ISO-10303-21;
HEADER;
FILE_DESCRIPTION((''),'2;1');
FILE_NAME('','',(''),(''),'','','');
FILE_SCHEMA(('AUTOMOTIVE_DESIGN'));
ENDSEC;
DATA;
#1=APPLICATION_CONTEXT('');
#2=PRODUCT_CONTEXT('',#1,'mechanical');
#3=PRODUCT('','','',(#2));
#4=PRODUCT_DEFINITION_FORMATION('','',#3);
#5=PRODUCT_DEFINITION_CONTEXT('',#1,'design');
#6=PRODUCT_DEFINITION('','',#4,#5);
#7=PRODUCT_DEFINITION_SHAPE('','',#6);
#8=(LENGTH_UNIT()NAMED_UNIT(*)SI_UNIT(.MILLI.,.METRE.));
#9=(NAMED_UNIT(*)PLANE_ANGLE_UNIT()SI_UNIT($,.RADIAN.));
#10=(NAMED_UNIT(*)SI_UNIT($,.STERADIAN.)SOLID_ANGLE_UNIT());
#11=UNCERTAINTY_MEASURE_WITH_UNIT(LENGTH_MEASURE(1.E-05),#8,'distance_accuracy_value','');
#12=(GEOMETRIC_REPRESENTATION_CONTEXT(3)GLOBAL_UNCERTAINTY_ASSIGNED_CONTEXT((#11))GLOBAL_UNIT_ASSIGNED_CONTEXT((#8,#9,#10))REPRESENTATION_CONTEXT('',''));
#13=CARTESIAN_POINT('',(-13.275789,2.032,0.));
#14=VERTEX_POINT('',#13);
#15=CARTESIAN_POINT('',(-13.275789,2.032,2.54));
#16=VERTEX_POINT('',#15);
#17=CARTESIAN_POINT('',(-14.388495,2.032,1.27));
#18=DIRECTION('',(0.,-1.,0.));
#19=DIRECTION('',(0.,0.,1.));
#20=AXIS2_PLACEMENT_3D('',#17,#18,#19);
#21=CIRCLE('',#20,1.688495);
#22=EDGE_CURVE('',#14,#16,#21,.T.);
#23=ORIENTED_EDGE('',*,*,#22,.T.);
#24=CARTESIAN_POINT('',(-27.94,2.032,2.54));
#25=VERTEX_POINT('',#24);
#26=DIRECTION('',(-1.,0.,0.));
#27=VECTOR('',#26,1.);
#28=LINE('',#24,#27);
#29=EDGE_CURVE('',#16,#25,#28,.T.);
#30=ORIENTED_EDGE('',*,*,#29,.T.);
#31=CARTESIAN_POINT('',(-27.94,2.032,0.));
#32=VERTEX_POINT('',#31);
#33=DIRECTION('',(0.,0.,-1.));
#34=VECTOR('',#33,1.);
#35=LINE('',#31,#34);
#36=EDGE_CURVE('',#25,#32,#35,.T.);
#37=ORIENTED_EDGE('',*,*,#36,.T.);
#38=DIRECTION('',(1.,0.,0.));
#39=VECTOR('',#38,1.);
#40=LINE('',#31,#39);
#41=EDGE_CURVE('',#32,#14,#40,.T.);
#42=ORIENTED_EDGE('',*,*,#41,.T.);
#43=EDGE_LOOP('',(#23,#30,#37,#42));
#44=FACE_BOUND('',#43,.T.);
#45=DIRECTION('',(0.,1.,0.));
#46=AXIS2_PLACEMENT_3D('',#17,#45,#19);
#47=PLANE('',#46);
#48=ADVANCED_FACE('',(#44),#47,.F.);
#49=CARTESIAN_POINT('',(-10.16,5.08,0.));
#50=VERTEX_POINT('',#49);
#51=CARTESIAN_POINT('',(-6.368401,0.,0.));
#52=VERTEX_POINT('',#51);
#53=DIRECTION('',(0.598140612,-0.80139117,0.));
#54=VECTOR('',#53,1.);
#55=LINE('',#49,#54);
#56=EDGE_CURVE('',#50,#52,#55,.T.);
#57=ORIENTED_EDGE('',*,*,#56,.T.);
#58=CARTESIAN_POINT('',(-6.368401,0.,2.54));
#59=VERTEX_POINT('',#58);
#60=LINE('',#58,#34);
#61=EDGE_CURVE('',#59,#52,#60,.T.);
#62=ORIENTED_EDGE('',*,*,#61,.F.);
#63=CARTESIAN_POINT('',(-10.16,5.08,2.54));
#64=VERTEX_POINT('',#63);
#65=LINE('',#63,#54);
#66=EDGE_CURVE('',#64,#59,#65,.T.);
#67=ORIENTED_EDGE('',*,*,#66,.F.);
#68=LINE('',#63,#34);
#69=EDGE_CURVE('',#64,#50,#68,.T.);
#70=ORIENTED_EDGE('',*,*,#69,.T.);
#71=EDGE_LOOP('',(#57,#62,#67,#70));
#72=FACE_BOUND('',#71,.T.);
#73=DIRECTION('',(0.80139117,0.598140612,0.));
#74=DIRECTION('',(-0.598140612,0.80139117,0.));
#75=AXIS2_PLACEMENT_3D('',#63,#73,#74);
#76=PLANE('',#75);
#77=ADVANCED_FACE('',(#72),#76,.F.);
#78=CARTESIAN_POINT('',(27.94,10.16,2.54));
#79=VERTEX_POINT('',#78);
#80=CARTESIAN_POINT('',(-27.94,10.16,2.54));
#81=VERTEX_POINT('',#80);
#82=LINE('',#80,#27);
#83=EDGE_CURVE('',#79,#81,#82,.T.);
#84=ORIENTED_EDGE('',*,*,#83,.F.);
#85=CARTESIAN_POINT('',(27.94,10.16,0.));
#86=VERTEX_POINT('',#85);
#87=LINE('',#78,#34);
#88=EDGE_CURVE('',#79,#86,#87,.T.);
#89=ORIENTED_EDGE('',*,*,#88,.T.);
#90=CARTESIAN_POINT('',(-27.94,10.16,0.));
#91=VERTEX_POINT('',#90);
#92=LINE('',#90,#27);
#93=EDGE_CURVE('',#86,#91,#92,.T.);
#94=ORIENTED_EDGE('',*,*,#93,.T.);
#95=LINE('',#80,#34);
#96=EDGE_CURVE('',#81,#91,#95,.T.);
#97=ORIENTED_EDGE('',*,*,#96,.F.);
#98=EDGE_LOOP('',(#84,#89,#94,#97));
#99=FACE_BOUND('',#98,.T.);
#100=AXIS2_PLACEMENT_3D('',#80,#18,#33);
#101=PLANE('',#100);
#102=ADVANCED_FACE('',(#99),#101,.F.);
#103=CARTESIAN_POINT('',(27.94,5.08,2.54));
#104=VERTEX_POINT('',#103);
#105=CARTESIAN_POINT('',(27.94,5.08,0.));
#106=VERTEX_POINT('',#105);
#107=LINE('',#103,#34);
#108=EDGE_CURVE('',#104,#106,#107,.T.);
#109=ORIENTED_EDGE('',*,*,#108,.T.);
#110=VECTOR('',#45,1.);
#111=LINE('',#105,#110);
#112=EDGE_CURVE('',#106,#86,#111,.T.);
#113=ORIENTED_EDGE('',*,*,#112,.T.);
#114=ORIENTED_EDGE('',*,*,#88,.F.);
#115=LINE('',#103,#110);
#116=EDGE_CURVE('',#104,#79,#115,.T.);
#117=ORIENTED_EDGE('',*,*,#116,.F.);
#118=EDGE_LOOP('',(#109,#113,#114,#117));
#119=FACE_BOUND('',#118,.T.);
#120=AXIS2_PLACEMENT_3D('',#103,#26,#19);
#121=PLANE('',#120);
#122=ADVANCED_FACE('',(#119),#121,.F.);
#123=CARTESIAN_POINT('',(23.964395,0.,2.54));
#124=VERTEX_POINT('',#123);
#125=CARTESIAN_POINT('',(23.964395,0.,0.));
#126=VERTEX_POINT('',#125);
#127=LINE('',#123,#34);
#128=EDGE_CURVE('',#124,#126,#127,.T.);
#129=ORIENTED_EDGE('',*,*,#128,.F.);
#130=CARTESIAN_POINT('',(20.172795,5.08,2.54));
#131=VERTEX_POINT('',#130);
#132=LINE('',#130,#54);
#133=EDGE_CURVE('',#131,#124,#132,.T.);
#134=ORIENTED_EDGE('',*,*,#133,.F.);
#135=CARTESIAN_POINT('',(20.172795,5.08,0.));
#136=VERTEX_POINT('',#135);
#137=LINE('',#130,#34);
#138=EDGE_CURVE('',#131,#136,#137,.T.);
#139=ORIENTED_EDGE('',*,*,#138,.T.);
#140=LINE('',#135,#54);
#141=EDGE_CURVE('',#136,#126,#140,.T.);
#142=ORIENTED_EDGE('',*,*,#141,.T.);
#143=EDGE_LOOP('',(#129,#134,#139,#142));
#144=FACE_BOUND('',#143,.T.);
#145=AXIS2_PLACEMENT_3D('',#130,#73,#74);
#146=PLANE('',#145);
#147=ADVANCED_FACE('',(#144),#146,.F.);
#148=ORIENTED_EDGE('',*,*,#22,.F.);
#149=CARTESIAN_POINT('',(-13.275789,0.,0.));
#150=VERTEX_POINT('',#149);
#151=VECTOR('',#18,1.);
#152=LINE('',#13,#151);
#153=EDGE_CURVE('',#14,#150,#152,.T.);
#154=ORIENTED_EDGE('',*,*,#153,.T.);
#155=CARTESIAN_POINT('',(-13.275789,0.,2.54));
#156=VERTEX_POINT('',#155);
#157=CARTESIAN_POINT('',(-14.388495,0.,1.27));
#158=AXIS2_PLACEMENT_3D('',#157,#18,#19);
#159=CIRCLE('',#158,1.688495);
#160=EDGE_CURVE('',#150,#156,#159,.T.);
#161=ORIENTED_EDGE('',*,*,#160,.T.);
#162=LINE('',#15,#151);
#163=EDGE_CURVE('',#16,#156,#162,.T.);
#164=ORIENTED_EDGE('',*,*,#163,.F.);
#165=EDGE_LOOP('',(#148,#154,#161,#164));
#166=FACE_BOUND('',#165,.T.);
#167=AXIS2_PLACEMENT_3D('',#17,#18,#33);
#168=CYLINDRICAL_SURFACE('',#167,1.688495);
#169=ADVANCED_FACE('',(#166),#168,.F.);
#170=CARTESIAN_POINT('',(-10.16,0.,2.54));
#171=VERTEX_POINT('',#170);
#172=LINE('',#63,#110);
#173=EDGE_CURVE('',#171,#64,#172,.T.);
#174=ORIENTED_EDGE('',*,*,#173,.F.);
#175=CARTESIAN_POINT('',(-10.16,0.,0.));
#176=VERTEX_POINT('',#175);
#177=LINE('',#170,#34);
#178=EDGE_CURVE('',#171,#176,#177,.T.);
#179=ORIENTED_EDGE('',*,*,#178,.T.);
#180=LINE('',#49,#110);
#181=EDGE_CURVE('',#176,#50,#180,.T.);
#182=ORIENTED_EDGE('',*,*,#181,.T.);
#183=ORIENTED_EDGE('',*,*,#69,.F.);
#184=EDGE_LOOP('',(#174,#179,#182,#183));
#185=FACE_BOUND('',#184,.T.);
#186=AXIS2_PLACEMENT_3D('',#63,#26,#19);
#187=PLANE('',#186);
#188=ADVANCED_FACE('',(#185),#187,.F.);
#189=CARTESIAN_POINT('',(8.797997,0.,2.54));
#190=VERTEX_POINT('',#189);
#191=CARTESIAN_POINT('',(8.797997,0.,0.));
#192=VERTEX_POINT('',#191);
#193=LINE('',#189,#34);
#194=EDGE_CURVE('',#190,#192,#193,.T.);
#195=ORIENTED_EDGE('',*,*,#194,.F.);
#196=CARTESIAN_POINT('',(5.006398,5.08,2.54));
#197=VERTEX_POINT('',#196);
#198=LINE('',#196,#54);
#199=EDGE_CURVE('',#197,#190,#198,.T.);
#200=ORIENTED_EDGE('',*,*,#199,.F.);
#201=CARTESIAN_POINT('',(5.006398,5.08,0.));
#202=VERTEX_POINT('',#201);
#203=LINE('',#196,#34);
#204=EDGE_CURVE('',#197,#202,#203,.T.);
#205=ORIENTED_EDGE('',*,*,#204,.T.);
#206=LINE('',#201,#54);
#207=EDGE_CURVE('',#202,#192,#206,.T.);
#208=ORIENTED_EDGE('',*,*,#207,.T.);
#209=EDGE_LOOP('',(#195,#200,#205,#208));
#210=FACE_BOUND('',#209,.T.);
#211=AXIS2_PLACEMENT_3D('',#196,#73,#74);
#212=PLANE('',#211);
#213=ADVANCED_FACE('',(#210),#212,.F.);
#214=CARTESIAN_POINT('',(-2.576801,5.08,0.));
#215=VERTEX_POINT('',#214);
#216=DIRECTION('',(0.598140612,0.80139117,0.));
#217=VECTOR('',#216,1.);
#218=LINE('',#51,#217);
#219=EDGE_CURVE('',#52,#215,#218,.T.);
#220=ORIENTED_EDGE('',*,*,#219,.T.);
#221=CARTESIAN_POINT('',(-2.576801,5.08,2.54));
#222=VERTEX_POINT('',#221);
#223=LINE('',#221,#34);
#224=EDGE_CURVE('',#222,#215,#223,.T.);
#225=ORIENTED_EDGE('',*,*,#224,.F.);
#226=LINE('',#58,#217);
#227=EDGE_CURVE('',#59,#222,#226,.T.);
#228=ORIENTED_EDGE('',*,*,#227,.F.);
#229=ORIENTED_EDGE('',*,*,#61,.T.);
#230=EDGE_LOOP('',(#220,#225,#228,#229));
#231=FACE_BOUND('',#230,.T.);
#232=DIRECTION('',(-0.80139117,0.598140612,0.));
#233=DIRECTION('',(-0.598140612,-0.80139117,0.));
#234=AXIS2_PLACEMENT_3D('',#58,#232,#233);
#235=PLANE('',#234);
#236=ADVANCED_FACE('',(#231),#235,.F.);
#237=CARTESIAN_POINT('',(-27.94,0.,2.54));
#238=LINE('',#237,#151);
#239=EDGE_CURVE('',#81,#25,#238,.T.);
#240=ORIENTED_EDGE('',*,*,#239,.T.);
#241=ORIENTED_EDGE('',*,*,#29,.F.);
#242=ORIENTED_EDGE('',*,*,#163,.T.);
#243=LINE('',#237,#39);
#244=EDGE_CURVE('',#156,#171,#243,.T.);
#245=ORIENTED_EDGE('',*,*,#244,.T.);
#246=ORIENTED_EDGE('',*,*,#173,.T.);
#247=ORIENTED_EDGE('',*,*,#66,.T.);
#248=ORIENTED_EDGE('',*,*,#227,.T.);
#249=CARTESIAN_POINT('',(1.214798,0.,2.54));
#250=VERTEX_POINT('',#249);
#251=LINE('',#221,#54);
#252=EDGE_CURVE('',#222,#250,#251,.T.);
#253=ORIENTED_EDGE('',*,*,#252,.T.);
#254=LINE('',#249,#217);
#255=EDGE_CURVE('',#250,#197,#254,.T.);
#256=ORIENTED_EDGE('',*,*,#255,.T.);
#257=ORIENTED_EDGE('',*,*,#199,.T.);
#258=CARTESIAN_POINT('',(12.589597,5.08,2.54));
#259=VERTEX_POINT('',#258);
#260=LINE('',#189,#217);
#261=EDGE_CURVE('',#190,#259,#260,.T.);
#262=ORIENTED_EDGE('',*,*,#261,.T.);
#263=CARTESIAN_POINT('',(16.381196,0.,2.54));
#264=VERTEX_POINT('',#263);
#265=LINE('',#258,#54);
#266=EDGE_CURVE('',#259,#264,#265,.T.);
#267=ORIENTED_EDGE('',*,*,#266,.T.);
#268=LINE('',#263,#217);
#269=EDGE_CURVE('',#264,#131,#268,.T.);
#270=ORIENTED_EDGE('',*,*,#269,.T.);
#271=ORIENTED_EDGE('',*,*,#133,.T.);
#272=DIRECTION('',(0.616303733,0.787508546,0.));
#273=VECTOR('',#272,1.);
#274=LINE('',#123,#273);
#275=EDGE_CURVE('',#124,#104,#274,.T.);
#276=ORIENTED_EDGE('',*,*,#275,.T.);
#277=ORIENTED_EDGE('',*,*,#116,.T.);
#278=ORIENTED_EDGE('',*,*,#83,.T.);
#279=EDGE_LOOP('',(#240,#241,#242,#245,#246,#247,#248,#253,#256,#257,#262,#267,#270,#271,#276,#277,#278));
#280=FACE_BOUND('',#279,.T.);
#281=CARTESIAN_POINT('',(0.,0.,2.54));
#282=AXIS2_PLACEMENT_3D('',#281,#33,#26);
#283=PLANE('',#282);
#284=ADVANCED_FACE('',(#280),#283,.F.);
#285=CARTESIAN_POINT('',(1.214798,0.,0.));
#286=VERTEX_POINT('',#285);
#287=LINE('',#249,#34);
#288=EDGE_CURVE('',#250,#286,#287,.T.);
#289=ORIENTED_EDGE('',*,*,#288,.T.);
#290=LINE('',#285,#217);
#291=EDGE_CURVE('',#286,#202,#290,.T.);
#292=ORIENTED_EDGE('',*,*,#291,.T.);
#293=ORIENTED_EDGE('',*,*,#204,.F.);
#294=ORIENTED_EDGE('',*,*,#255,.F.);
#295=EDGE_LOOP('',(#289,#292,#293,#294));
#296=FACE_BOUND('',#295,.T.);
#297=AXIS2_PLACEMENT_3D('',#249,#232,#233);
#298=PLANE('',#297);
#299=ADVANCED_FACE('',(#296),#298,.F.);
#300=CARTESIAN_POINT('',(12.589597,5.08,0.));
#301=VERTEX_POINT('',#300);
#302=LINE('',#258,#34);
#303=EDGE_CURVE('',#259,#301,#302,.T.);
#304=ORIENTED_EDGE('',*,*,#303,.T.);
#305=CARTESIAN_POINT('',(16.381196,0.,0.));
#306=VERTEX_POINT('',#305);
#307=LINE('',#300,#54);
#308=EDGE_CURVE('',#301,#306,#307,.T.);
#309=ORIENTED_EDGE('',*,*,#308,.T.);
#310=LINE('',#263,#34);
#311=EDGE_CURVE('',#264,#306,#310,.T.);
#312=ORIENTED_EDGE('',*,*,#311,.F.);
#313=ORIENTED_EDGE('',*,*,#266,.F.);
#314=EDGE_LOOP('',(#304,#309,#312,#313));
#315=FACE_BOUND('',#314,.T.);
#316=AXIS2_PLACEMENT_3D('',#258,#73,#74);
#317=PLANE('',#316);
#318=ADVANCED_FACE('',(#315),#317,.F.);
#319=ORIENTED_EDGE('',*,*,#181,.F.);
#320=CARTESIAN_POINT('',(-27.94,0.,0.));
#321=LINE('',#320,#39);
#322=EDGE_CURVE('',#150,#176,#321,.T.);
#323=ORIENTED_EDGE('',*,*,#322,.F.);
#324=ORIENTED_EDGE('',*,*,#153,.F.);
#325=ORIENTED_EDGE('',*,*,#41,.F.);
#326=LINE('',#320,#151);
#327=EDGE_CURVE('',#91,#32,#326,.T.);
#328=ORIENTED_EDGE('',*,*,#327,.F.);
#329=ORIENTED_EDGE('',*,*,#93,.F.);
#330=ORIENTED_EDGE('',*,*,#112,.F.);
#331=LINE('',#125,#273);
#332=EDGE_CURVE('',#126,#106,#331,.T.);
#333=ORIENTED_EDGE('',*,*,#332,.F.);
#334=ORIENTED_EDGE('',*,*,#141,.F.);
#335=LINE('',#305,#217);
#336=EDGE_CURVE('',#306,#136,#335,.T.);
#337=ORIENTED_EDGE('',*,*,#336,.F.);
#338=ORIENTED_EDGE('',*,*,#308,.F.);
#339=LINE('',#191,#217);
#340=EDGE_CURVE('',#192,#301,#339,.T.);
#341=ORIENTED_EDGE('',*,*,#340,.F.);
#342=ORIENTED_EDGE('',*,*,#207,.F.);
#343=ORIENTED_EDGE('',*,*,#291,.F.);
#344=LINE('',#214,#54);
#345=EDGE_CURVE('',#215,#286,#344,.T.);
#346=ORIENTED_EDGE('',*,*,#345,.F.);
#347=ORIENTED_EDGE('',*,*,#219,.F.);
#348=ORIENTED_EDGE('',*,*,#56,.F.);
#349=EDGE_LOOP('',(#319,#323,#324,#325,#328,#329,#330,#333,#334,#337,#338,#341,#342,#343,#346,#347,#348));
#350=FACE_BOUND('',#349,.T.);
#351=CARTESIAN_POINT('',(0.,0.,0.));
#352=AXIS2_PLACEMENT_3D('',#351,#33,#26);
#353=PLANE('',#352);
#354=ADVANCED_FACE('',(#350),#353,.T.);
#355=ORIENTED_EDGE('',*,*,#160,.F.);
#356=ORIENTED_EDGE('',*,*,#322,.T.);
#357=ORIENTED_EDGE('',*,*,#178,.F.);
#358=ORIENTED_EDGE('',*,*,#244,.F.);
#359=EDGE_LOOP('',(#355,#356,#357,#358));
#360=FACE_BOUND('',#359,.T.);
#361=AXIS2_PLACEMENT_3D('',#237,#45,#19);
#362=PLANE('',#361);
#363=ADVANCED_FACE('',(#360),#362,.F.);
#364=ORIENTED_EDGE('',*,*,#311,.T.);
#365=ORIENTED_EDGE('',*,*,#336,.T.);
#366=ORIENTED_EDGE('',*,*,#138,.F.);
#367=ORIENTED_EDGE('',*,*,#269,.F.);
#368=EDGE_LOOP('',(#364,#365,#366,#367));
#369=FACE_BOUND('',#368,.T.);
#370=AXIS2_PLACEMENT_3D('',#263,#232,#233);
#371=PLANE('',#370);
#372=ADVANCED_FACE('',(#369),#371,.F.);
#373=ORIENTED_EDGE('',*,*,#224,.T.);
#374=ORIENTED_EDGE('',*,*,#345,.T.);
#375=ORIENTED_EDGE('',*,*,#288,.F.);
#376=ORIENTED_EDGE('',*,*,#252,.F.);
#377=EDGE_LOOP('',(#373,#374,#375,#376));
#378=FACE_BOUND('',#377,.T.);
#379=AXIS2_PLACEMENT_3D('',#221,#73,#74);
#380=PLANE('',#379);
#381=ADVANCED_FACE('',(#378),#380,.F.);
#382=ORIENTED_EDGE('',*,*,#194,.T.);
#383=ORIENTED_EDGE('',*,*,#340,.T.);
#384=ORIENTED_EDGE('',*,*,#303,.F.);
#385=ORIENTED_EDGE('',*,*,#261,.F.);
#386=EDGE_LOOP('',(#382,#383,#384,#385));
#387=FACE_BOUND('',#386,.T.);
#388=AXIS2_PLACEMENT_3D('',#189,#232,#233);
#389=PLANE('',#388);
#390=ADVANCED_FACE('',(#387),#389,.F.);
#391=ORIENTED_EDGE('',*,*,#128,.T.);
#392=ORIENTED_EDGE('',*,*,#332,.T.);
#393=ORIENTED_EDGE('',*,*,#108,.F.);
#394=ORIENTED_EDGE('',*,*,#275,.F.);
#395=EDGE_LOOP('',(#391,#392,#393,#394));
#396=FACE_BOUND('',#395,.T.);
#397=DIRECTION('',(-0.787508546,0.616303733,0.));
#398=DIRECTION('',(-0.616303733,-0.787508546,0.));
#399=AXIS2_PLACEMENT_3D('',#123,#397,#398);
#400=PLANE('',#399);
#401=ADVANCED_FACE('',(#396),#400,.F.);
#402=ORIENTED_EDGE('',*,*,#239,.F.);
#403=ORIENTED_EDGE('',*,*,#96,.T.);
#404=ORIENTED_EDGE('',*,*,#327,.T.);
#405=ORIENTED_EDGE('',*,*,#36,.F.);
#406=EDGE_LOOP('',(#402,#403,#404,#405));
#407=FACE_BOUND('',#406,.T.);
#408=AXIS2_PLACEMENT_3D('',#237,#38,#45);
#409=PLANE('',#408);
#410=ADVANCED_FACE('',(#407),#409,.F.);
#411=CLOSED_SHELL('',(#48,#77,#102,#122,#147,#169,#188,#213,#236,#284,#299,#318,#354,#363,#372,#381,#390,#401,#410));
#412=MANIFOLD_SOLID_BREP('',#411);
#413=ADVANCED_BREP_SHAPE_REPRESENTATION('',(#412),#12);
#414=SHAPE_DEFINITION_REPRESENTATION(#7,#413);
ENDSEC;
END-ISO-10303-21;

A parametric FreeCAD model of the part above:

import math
import FreeCAD as App
import Part
import Sketcher
Q = App.Units.Quantity

doc = App.newDocument("Part")
body = doc.addObject("PartDesign::Body", "Body")

# Sketch on XY plane
sketch1 = doc.addObject("Sketcher::SketchObject", "Sketch")
body.addObject(sketch1)
sketch1.AttachmentSupport = (doc.XY_Plane, [""])
sketch1.MapMode = "FlatFace"
sketch1.addGeometry(Part.LineSegment(App.Vector(-27.94, 0, 0), App.Vector(-10.16, 0, 0)), False)
sketch1.addGeometry(Part.LineSegment(App.Vector(-10.16, 0, 0), App.Vector(-10.16, 5.08, 0)), False)
sketch1.addGeometry(Part.LineSegment(App.Vector(-10.16, 5.08, 0), App.Vector(-6.368401, 0, 0)), False)
sketch1.addGeometry(Part.LineSegment(App.Vector(-6.368401, 0, 0), App.Vector(-2.576801, 5.08, 0)), False)
sketch1.addGeometry(Part.LineSegment(App.Vector(-2.576801, 5.08, 0), App.Vector(1.214798, 0, 0)), False)
sketch1.addGeometry(Part.LineSegment(App.Vector(1.214798, 0, 0), App.Vector(5.006398, 5.08, 0)), False)
sketch1.addGeometry(Part.LineSegment(App.Vector(5.006398, 5.08, 0), App.Vector(8.797997, 0, 0)), False)
sketch1.addGeometry(Part.LineSegment(App.Vector(8.797997, 0, 0), App.Vector(12.589597, 5.08, 0)), False)
sketch1.addGeometry(Part.LineSegment(App.Vector(12.589597, 5.08, 0), App.Vector(16.381196, 0, 0)), False)
sketch1.addGeometry(Part.LineSegment(App.Vector(16.381196, 0, 0), App.Vector(20.172795, 5.08, 0)), False)
sketch1.addGeometry(Part.LineSegment(App.Vector(20.172795, 5.08, 0), App.Vector(23.964395, 0, 0)), False)
sketch1.addGeometry(Part.LineSegment(App.Vector(23.964395, 0, 0), App.Vector(27.94, 5.08, 0)), False)
sketch1.addGeometry(Part.LineSegment(App.Vector(27.94, 5.08, 0), App.Vector(27.94, 10.16, 0)), False)
sketch1.addGeometry(Part.LineSegment(App.Vector(27.94, 10.16, 0), App.Vector(-27.94, 10.16, 0)), False)
sketch1.addGeometry(Part.LineSegment(App.Vector(-27.94, 10.16, 0), App.Vector(-27.94, 0, 0)), False)
sketch1.addConstraint(Sketcher.Constraint("Coincident", 0, 2, 1, 1))
sketch1.addConstraint(Sketcher.Constraint("Coincident", 1, 2, 2, 1))
sketch1.addConstraint(Sketcher.Constraint("Coincident", 2, 2, 3, 1))
sketch1.addConstraint(Sketcher.Constraint("Coincident", 3, 2, 4, 1))
sketch1.addConstraint(Sketcher.Constraint("Coincident", 4, 2, 5, 1))
sketch1.addConstraint(Sketcher.Constraint("Coincident", 5, 2, 6, 1))
sketch1.addConstraint(Sketcher.Constraint("Coincident", 6, 2, 7, 1))
sketch1.addConstraint(Sketcher.Constraint("Coincident", 7, 2, 8, 1))
sketch1.addConstraint(Sketcher.Constraint("Coincident", 8, 2, 9, 1))
sketch1.addConstraint(Sketcher.Constraint("Coincident", 9, 2, 10, 1))
sketch1.addConstraint(Sketcher.Constraint("Coincident", 10, 2, 11, 1))
sketch1.addConstraint(Sketcher.Constraint("Coincident", 11, 2, 12, 1))
sketch1.addConstraint(Sketcher.Constraint("Coincident", 12, 2, 13, 1))
sketch1.addConstraint(Sketcher.Constraint("Coincident", 13, 2, 14, 1))
sketch1.addConstraint(Sketcher.Constraint("Coincident", 14, 2, 0, 1))
sketch1.addConstraint(Sketcher.Constraint("Horizontal", 0))
sketch1.addConstraint(Sketcher.Constraint("Vertical", 1))
sketch1.addConstraint(Sketcher.Constraint("Vertical", 12))
sketch1.addConstraint(Sketcher.Constraint("Horizontal", 13))
sketch1.addConstraint(Sketcher.Constraint("Vertical", 14))
sketch1.addConstraint(Sketcher.Constraint("PointOnObject", 0, 2, -1))
sketch1.addConstraint(Sketcher.Constraint("PointOnObject", 2, 2, -1))
sketch1.addConstraint(Sketcher.Constraint("PointOnObject", 4, 2, -1))
sketch1.addConstraint(Sketcher.Constraint("PointOnObject", 6, 2, -1))
sketch1.addConstraint(Sketcher.Constraint("PointOnObject", 8, 2, -1))
sketch1.addConstraint(Sketcher.Constraint("PointOnObject", 10, 2, -1))
sketch1.addConstraint(Sketcher.Constraint("Parallel", 2, 4))
sketch1.addConstraint(Sketcher.Constraint("Parallel", 3, 5))
sketch1.addConstraint(Sketcher.Constraint("Parallel", 4, 6))
sketch1.addConstraint(Sketcher.Constraint("Parallel", 5, 7))
sketch1.addConstraint(Sketcher.Constraint("Parallel", 6, 8))
sketch1.addConstraint(Sketcher.Constraint("Parallel", 7, 9))
sketch1.addConstraint(Sketcher.Constraint("Parallel", 8, 10))
sketch1.addConstraint(Sketcher.Constraint("Horizontal", 1, 2, 3, 2))
sketch1.addConstraint(Sketcher.Constraint("Horizontal", 3, 2, 5, 2))
sketch1.addConstraint(Sketcher.Constraint("Horizontal", 5, 2, 7, 2))
sketch1.addConstraint(Sketcher.Constraint("Horizontal", 7, 2, 9, 2))
sketch1.addConstraint(Sketcher.Constraint("Horizontal", 9, 2, 11, 2))
sketch1.addConstraint(Sketcher.Constraint("Equal", 1, 12))
sketch1.addConstraint(Sketcher.Constraint("Equal", 2, 3))
sketch1.addConstraint(Sketcher.Constraint("DistanceX", 0, 1, 0, 2, Q("0.7 in")))
sketch1.addConstraint(Sketcher.Constraint("DistanceX", 13, 2, 13, 1, Q("2.2 in")))
sketch1.addConstraint(Sketcher.Constraint("DistanceY", 1, 1, 1, 2, Q("0.2 in")))
sketch1.addConstraint(Sketcher.Constraint("DistanceX", 0, 2, -1, 1, Q("0.4 in")))
sketch1.addConstraint(Sketcher.Constraint("DistanceX", 2, 2, -1, 1, 6.368401))
pad1 = doc.addObject("PartDesign::Pad", "Pad")
body.addObject(pad1)
pad1.Profile = sketch1
pad1.Length = Q("0.1 in")

# Sketch on XZ plane
sketch2 = doc.addObject("Sketcher::SketchObject", "Sketch001")
body.addObject(sketch2)
sketch2.AttachmentSupport = (doc.XZ_Plane, [""])
sketch2.MapMode = "FlatFace"
sketch2.addGeometry(Part.LineSegment(App.Vector(-27.94, 0, 0), App.Vector(-13.275789, 0, 0)), False)
sketch2.addGeometry(Part.ArcOfCircle(Part.Circle(App.Vector(-14.388495, 1.27, 0), App.Vector(0, 0, 1), 1.688495), math.radians(-48.776872), math.radians(48.776872)), False)
sketch2.addGeometry(Part.LineSegment(App.Vector(-13.275789, 2.54, 0), App.Vector(-27.94, 2.54, 0)), False)
sketch2.addGeometry(Part.LineSegment(App.Vector(-27.94, 2.54, 0), App.Vector(-27.94, 0, 0)), False)
sketch2.addConstraint(Sketcher.Constraint("Coincident", 0, 2, 1, 1))
sketch2.addConstraint(Sketcher.Constraint("Coincident", 1, 2, 2, 1))
sketch2.addConstraint(Sketcher.Constraint("Coincident", 2, 2, 3, 1))
sketch2.addConstraint(Sketcher.Constraint("Coincident", 3, 2, 0, 1))
sketch2.addConstraint(Sketcher.Constraint("Horizontal", 0))
sketch2.addConstraint(Sketcher.Constraint("Horizontal", 2))
sketch2.addConstraint(Sketcher.Constraint("Vertical", 3))
sketch2.addConstraint(Sketcher.Constraint("PointOnObject", 0, 2, -1))
sketch2.addConstraint(Sketcher.Constraint("Vertical", 0, 2, 1, 2))
sketch2.addConstraint(Sketcher.Constraint("DistanceY", 3, 2, 3, 1, Q("0.1 in")))
sketch2.addConstraint(Sketcher.Constraint("DistanceX", 2, 2, -1, 1, Q("1.1 in")))
sketch2.addConstraint(Sketcher.Constraint("Radius", 1, 1.688495))
sketch2.addConstraint(Sketcher.Constraint("DistanceX", 0, 1, 0, 2, 14.664211))
pocket1 = doc.addObject("PartDesign::Pocket", "Pocket")
body.addObject(pocket1)
pocket1.Profile = sketch2
pocket1.Length = Q("0.08 in")

doc.recompute()
